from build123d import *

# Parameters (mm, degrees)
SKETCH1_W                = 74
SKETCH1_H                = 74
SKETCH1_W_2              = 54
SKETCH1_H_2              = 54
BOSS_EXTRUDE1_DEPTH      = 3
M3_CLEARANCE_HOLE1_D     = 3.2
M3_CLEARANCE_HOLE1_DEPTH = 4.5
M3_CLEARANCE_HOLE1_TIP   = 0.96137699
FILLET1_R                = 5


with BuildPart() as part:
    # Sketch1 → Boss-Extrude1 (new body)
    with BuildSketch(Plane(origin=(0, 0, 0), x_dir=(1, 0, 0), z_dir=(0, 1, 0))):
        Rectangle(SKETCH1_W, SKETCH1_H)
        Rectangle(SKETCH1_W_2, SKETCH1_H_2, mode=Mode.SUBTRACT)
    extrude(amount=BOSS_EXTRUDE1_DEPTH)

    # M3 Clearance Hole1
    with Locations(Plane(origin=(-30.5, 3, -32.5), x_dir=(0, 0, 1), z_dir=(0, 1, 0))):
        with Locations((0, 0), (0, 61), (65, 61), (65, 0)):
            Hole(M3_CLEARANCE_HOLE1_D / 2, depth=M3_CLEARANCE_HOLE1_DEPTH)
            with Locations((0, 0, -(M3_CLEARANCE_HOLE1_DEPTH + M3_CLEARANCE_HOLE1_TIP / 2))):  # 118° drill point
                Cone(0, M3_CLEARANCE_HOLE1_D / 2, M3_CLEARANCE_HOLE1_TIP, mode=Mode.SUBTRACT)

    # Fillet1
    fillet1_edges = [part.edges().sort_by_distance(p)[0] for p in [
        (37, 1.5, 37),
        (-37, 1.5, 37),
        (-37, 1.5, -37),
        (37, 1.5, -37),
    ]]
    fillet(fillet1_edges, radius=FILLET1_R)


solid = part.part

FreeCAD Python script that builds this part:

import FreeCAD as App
import Part
import Sketcher
from FreeCAD import Vector
Q = App.Units.Quantity


def edges_at(feature, points):
    """Names of the edges that pass closest to the given points."""
    edges = feature.Shape.Edges
    near = lambda p: min(range(len(edges)), key=lambda i: edges[i].distToShape(Part.Vertex(*p))[0])
    return sorted({f"Edge{near(p) + 1}" for p in points})


def add_polygon(sketch, points):
    """Adds a closed chain of lines whose ends are joined by coincident constraints."""
    first, n = sketch.GeometryCount, len(points)
    for a, b in zip(points, points[1:] + points[:1]):
        sketch.addGeometry(Part.LineSegment(App.Vector(*a, 0), App.Vector(*b, 0)), False)
    for i in range(n):
        sketch.addConstraint(Sketcher.Constraint("Coincident", first + i, 2, first + (i + 1) % n, 1))

doc = App.newDocument("Part")
params = doc.addObject("Spreadsheet::Sheet", "Params")
for row, (alias, value) in enumerate([
    ("sketch1_width", "74 mm"),
    ("sketch1_width2", "54 mm"),
    ("pad1_length", "3 mm"),
    ("sketch2_diameter", "3.2 mm"),
    ("hole_diameter", "3.2 mm"),
    ("hole_depth", "4.5 mm"),
    ("fillet_radius", "5 mm"),
], start=1):
    params.set(f"A{row}", alias)
    params.set(f"B{row}", "=" + value)
    params.setAlias(f"B{row}", alias)

body = doc.addObject("PartDesign::Body", "Body")

sketch1 = doc.addObject("Sketcher::SketchObject", "Sketch")
body.addObject(sketch1)
sketch1.AttachmentSupport = (doc.XZ_Plane, [""])
sketch1.MapMode = "FlatFace"
add_polygon(sketch1, [(-37, -37), (-37, 37), (37, 37), (37, -37)])
add_polygon(sketch1, [(27, 27), (-27, 27), (-27, -27), (27, -27)])
sketch1.addConstraint([
    Sketcher.Constraint("Vertical", 0),
    Sketcher.Constraint("Horizontal", 1),
    Sketcher.Constraint("Vertical", 2),
    Sketcher.Constraint("Horizontal", 3),
    Sketcher.Constraint("Horizontal", 4),
    Sketcher.Constraint("Vertical", 5),
    Sketcher.Constraint("Horizontal", 6),
    Sketcher.Constraint("Vertical", 7),
    Sketcher.Constraint("Symmetric", 0, 2, 2, 2, -1, 1),
    Sketcher.Constraint("Symmetric", 4, 2, 6, 2, -1, 1),
    Sketcher.Constraint("Equal", 3, 0),
    Sketcher.Constraint("Equal", 6, 5),
    Sketcher.Constraint("DistanceX", 1, 1, 1, 2, Q("74 mm")),
    Sketcher.Constraint("DistanceX", 4, 2, 4, 1, Q("54 mm")),
])
sketch1.setExpression("Constraints[20]", "Params.sketch1_width")
sketch1.setExpression("Constraints[21]", "Params.sketch1_width2")
pad1 = doc.addObject("PartDesign::Pad", "Pad")
body.addObject(pad1)
pad1.Profile = sketch1
pad1.setExpression("Length", "Params.pad1_length")
pad1.Reversed = True

sketch2 = doc.addObject("Sketcher::SketchObject", "Sketch001")
body.addObject(sketch2)
sketch2.AttachmentSupport = (doc.XZ_Plane, [""])
sketch2.MapMode = "FlatFace"
sketch2.AttachmentOffset = App.Placement(Vector(0, 0, -3), App.Rotation())
sketch2.addGeometry([
    Part.Circle(Vector(-30.5, -32.5, 0), Vector(0, 0, 1), 1.6),
    Part.Circle(Vector(30.5, -32.5, 0), Vector(0, 0, 1), 1.6),
    Part.Circle(Vector(30.5, 32.5, 0), Vector(0, 0, 1), 1.6),
    Part.Circle(Vector(-30.5, 32.5, 0), Vector(0, 0, 1), 1.6),
], False)
sketch2.addConstraint([
    Sketcher.Constraint("Equal", 0, 1),
    Sketcher.Constraint("Equal", 1, 2),
    Sketcher.Constraint("Equal", 2, 3),
    Sketcher.Constraint("Symmetric", 0, 3, 2, 3, -1, 1),
    Sketcher.Constraint("Symmetric", 1, 3, 3, 3, -1, 1),
    Sketcher.Constraint("Symmetric", 0, 3, 1, 3, -2),
    Sketcher.Constraint("Diameter", 0, Q("3.2 mm")),
    Sketcher.Constraint("DistanceX", 0, 3, 1, 3, Q("61 mm")),
    Sketcher.Constraint("DistanceY", 1, 3, 2, 3, Q("65 mm")),
])
sketch2.setExpression("Constraints[6]", "Params.sketch2_diameter")
doc.recompute()
hole = doc.addObject("PartDesign::Hole", "Hole")
body.addObject(hole)
hole.Profile = sketch2
hole.ThreadType = "None"
hole.setExpression("Diameter", "Params.hole_diameter")
hole.DepthType = "Dimension"
hole.setExpression("Depth", "Params.hole_depth")
hole.DrillPoint = "Angled"
hole.DrillPointAngle = 118
hole.Reversed = True
doc.recompute()

fillet = doc.addObject("PartDesign::Fillet", "Fillet")
body.addObject(fillet)
fillet.Base = (hole, edges_at(hole, [
    (37, 1.5, 37),
    (-37, 1.5, 37),
    (-37, 1.5, -37),
    (37, 1.5, -37),
]))
fillet.setExpression("Radius", "Params.fillet_radius")

doc.recompute()
